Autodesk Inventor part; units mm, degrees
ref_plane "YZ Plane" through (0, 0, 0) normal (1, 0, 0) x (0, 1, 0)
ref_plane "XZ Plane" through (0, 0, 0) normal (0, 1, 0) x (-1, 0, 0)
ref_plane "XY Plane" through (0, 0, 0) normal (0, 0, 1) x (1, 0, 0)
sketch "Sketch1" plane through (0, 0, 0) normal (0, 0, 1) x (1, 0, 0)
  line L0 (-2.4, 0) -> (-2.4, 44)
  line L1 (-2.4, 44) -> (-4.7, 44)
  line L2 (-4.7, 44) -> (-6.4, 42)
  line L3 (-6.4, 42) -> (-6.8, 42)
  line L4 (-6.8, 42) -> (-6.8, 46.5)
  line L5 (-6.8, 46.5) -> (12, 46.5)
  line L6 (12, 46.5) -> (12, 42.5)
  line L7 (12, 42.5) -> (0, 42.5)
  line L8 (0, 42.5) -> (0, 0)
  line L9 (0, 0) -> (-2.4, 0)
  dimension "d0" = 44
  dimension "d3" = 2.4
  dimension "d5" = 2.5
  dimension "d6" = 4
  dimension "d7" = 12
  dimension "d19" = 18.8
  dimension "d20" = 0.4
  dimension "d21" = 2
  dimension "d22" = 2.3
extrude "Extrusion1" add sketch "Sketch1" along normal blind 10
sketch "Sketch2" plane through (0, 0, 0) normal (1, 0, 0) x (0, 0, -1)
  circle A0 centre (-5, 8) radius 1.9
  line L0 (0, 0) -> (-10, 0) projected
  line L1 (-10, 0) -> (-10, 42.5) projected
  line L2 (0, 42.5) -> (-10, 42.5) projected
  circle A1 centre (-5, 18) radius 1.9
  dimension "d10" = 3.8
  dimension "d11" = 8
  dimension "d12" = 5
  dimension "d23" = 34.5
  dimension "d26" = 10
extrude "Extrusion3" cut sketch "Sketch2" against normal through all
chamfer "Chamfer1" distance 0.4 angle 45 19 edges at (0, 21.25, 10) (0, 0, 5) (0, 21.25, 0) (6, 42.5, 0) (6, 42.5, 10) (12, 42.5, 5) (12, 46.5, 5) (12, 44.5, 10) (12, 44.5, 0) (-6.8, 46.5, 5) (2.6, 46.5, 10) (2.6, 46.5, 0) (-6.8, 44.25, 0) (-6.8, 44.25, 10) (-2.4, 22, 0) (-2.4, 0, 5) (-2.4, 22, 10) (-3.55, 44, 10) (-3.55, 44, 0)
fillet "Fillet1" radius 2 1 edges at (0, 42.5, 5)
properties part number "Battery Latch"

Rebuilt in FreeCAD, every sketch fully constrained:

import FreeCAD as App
import Part
import Sketcher

V = App.Vector


def edges_at(feature, points):
    """Names of the edges that pass closest to the given points."""
    edges = feature.Shape.Edges
    near = lambda p: min(range(len(edges)), key=lambda i: edges[i].distToShape(Part.Vertex(*p))[0])
    return sorted({f"Edge{near(p) + 1}" for p in points})

doc = App.newDocument("Part")
params = doc.addObject("Spreadsheet::Sheet", "Params")
for row, (alias, value) in enumerate([
    ("sketch1_width", "12 mm"),
    ("sketch1_height", "44 mm"),
    ("sketch1_height2", "4 mm"),
    ("sketch1_width2", "2.4 mm"),
    ("sketch1_width3", "18.8 mm"),
    ("pad1_length", "10 mm"),
    ("sketch2_diameter", "3.8 mm"),
    ("chamfer_size", "0.4 mm"),
    ("fillet_radius", "2 mm"),
], start=1):
    params.set(f"A{row}", alias)
    params.set(f"B{row}", "=" + value)
    params.setAlias(f"B{row}", alias)

body = doc.addObject("PartDesign::Body", "Body")

sketch1 = body.newObject("Sketcher::SketchObject", "Sketch")
sketch1.AttachmentSupport = (doc.getObject("XY_Plane"), [""])
sketch1.MapMode = "FlatFace"
sketch1.addGeometry([
    Part.LineSegment(V(-2.4, 44, 0), V(-2.4, 0, 0)),
    Part.LineSegment(V(-2.4, 0, 0), V(0, 0, 0)),
    Part.LineSegment(V(0, 0, 0), V(0, 42.5, 0)),
    Part.LineSegment(V(0, 42.5, 0), V(12, 42.5, 0)),
    Part.LineSegment(V(12, 42.5, 0), V(12, 46.5, 0)),
    Part.LineSegment(V(12, 46.5, 0), V(-6.8, 46.5, 0)),
    Part.LineSegment(V(-6.8, 46.5, 0), V(-6.8, 42, 0)),
    Part.LineSegment(V(-6.8, 42, 0), V(-6.4, 42, 0)),
    Part.LineSegment(V(-6.4, 42, 0), V(-4.7, 44, 0)),
    Part.LineSegment(V(-4.7, 44, 0), V(-2.4, 44, 0)),
], False)
sketch1.addConstraint([
    Sketcher.Constraint("Coincident", 0, 2, 1, 1),
    Sketcher.Constraint("Coincident", 1, 2, 2, 1),
    Sketcher.Constraint("Coincident", 2, 2, 3, 1),
    Sketcher.Constraint("Coincident", 3, 2, 4, 1),
    Sketcher.Constraint("Coincident", 4, 2, 5, 1),
    Sketcher.Constraint("Coincident", 5, 2, 6, 1),
    Sketcher.Constraint("Coincident", 6, 2, 7, 1),
    Sketcher.Constraint("Coincident", 7, 2, 8, 1),
    Sketcher.Constraint("Coincident", 8, 2, 9, 1),
    Sketcher.Constraint("Coincident", 9, 2, 0, 1),
    Sketcher.Constraint("Vertical", 0),
    Sketcher.Constraint("Horizontal", 1),
    Sketcher.Constraint("Vertical", 2),
    Sketcher.Constraint("Horizontal", 3),
    Sketcher.Constraint("Vertical", 4),
    Sketcher.Constraint("Horizontal", 5),
    Sketcher.Constraint("Vertical", 6),
    Sketcher.Constraint("Horizontal", 7),
    Sketcher.Constraint("Horizontal", 9),
    Sketcher.Constraint("Coincident", 1, 2, -1, 1),
    Sketcher.Constraint("DistanceX", 3, 1, 3, 2, 12.0),
    Sketcher.Constraint("DistanceY", 0, 2, 0, 1, 44.0),
    Sketcher.Constraint("DistanceY", 4, 1, 4, 2, 4.0),
    Sketcher.Constraint("DistanceX", 1, 1, 1, 2, 2.4),
    Sketcher.Constraint("DistanceX", 5, 2, 5, 1, 18.8),
    Sketcher.Constraint("DistanceX", 7, 1, 7, 2, 0.4),
    Sketcher.Constraint("DistanceX", 9, 1, 9, 2, 2.3),
    Sketcher.Constraint("DistanceY", 7, 2, 8, 2, 2.0),
    Sketcher.Constraint("DistanceY", 8, 2, 5, 2, 2.5),
])
sketch1.setExpression("Constraints[20]", "Params.sketch1_width")
sketch1.setExpression("Constraints[21]", "Params.sketch1_height")
sketch1.setExpression("Constraints[22]", "Params.sketch1_height2")
sketch1.setExpression("Constraints[23]", "Params.sketch1_width2")
sketch1.setExpression("Constraints[24]", "Params.sketch1_width3")
pad1 = body.newObject("PartDesign::Pad", "Pad")
pad1.Profile = sketch1
pad1.setExpression("Length", "Params.pad1_length")

sketch2 = body.newObject("Sketcher::SketchObject", "Sketch001")
sketch2.AttachmentSupport = (doc.getObject("YZ_Plane"), [""])
sketch2.MapMode = "FlatFace"
sketch2.addGeometry([
    Part.Circle(V(8, 5, 0), V(0, 0, 1), 1.9),
    Part.Circle(V(18, 5, 0), V(0, 0, 1), 1.9),
], False)
sketch2.addConstraint([
    Sketcher.Constraint("Equal", 0, 1),
    Sketcher.Constraint("Horizontal", 0, 3, 1, 3),
    Sketcher.Constraint("Diameter", 0, 3.8),
    Sketcher.Constraint("DistanceX", -1, 1, 0, 3, 8.0),
    Sketcher.Constraint("DistanceY", -1, 1, 0, 3, 5.0),
    Sketcher.Constraint("DistanceX", 0, 3, 1, 3, 10.0),
])
sketch2.setExpression("Constraints[2]", "Params.sketch2_diameter")
pocket1 = body.newObject("PartDesign::Pocket", "Pocket")
pocket1.Profile = sketch2
pocket1.Type = "ThroughAll"
doc.recompute()

chamfer = body.newObject("PartDesign::Chamfer", "Chamfer")
chamfer.Base = (pocket1, edges_at(pocket1, [
    (0, 21.25, 10),
    (0, 0, 5),
    (0, 21.25, 0),
    (6, 42.5, 0),
    (6, 42.5, 10),
    (12, 42.5, 5),
    (12, 46.5, 5),
    (12, 44.5, 10),
    (12, 44.5, 0),
    (-6.8, 46.5, 5),
    (2.6, 46.5, 10),
    (2.6, 46.5, 0),
    (-6.8, 44.25, 0),
    (-6.8, 44.25, 10),
    (-2.4, 22, 0),
    (-2.4, 0, 5),
    (-2.4, 22, 10),
    (-3.55, 44, 10),
    (-3.55, 44, 0),
]))
chamfer.setExpression("Size", "Params.chamfer_size")
doc.recompute()

fillet = body.newObject("PartDesign::Fillet", "Fillet")
fillet.Base = (chamfer, edges_at(chamfer, [(0, 42.5, 5)]))
fillet.setExpression("Radius", "Params.fillet_radius")

doc.recompute()
